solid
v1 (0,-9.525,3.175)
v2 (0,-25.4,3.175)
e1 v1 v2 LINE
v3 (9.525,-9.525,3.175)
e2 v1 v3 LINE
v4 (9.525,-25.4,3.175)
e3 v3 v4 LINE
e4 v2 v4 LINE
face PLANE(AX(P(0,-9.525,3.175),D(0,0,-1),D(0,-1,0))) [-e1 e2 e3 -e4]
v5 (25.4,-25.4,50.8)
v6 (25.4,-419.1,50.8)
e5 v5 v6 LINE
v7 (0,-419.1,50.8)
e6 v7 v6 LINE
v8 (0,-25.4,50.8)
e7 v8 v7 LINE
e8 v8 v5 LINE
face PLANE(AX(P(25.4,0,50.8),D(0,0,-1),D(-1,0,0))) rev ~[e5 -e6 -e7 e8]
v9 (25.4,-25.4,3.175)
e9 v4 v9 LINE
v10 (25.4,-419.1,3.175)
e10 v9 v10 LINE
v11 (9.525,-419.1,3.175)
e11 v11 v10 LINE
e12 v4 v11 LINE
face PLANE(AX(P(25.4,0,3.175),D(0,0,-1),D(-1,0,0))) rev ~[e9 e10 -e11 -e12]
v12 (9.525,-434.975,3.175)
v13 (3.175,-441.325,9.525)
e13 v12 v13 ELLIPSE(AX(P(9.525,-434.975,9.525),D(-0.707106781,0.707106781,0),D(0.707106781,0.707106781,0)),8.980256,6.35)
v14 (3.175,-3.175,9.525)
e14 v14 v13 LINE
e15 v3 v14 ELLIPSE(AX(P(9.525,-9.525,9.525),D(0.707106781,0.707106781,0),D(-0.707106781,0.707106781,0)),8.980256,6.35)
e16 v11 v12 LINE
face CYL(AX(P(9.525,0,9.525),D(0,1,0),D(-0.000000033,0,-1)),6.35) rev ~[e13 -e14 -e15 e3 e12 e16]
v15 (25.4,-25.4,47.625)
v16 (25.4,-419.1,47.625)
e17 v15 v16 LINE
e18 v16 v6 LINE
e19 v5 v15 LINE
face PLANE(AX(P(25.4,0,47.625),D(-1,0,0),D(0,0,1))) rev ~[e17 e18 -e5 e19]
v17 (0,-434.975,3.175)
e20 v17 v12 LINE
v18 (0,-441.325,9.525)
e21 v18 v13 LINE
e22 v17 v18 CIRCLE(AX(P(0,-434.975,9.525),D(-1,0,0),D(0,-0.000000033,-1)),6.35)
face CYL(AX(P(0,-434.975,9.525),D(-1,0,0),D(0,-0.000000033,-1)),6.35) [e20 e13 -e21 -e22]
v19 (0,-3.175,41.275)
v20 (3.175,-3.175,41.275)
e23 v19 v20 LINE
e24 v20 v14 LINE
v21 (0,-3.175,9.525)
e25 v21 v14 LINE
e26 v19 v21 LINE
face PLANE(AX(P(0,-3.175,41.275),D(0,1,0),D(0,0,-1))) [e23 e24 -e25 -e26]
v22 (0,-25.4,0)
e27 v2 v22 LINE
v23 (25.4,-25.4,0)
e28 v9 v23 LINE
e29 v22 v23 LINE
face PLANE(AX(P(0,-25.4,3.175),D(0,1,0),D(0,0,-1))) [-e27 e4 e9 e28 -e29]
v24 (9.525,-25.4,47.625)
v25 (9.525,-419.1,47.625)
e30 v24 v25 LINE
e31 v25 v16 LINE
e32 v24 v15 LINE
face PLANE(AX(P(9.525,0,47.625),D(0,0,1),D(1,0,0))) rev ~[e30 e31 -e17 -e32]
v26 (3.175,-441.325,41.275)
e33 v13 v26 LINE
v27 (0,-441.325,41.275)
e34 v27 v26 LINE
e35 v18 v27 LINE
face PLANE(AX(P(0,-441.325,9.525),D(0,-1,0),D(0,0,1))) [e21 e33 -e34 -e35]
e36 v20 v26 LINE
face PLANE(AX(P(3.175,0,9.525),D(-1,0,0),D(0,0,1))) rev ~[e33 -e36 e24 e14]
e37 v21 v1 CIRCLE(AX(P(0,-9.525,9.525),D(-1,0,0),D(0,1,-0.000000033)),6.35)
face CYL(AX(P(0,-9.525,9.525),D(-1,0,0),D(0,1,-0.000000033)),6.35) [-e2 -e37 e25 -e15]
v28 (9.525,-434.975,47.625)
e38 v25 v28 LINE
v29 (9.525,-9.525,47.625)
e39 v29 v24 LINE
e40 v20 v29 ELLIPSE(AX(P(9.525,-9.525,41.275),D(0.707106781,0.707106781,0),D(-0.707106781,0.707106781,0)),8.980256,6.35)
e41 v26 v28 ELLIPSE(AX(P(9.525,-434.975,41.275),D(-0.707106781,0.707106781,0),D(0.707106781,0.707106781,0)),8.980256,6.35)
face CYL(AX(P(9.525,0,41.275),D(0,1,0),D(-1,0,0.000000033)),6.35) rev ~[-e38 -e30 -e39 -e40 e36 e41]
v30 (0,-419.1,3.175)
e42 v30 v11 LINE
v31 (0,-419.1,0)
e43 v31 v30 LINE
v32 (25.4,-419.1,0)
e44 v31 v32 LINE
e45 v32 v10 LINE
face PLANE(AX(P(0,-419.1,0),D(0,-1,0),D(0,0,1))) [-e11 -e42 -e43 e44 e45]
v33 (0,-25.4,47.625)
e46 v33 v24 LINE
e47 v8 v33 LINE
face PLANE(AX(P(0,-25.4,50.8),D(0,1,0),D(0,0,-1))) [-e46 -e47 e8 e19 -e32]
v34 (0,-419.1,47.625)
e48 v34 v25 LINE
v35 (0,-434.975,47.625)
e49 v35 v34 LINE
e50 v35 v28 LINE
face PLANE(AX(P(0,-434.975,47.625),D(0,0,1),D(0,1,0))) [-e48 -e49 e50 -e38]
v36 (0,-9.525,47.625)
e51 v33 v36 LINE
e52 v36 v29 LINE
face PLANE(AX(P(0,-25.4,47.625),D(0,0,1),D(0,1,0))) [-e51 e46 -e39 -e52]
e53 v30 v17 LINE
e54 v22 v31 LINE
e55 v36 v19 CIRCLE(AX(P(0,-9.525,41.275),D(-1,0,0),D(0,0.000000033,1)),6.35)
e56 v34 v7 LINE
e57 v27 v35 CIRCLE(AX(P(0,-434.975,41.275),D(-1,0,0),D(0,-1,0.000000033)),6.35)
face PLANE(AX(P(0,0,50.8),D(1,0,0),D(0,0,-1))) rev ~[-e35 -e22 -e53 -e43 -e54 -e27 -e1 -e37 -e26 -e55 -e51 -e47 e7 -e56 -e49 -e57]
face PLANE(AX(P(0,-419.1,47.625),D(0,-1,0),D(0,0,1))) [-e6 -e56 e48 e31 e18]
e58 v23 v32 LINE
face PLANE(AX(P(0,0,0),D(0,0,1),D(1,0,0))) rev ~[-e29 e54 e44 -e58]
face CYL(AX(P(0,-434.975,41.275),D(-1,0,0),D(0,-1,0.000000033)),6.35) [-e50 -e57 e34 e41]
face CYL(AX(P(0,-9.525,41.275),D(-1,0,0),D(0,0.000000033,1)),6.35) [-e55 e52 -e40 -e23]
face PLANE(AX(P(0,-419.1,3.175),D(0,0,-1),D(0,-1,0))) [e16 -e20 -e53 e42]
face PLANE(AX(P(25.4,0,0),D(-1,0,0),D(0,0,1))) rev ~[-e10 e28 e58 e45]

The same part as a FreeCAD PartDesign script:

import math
import FreeCAD as App
import Part
import Sketcher
from FreeCAD import Vector
Q = App.Units.Quantity

doc = App.newDocument("Part")
body = doc.addObject("PartDesign::Body", "Body")

sketch1 = body.newObject("Sketcher::SketchObject", "Sketch")
sketch1.AttachmentSupport = (doc.getObject("XZ_Plane"), [""])
sketch1.MapMode = "FlatFace"
sketch1.addGeometry(Part.LineSegment(Vector(0, 50.8, 0), Vector(0, 0, 0)), False)
sketch1.addGeometry(Part.LineSegment(Vector(0, 0, 0), Vector(25.4, 0, 0)), False)
sketch1.addGeometry(Part.LineSegment(Vector(25.4, 0, 0), Vector(25.4, 3.2, 0)), False)
sketch1.addGeometry(Part.LineSegment(Vector(25.4, 3.2, 0), Vector(9.5, 3.2, 0)), False)
sketch1.addGeometry(Part.ArcOfCircle(Part.Circle(Vector(9.5, 9.5, 0), Vector(0, 0, 1), 6.4), math.radians(-180), math.radians(-90)), False)
sketch1.addGeometry(Part.LineSegment(Vector(3.2, 9.5, 0), Vector(3.2, 41.3, 0)), False)
sketch1.addGeometry(Part.ArcOfCircle(Part.Circle(Vector(9.5, 41.3, 0), Vector(0, 0, 1), 6.4), math.radians(90), math.radians(180)), False)
sketch1.addGeometry(Part.LineSegment(Vector(9.5, 47.6, 0), Vector(25.4, 47.6, 0)), False)
sketch1.addGeometry(Part.LineSegment(Vector(25.4, 47.6, 0), Vector(25.4, 50.8, 0)), False)
sketch1.addGeometry(Part.LineSegment(Vector(25.4, 50.8, 0), Vector(0, 50.8, 0)), False)
sketch1.addConstraint(Sketcher.Constraint("Coincident", 0, 2, 1, 1))
sketch1.addConstraint(Sketcher.Constraint("Coincident", 1, 2, 2, 1))
sketch1.addConstraint(Sketcher.Constraint("Coincident", 2, 2, 3, 1))
sketch1.addConstraint(Sketcher.Constraint("Tangent", 3, 2, 4, 2))
sketch1.addConstraint(Sketcher.Constraint("Tangent", 4, 1, 5, 1))
sketch1.addConstraint(Sketcher.Constraint("Tangent", 5, 2, 6, 2))
sketch1.addConstraint(Sketcher.Constraint("Tangent", 6, 1, 7, 1))
sketch1.addConstraint(Sketcher.Constraint("Coincident", 7, 2, 8, 1))
sketch1.addConstraint(Sketcher.Constraint("Coincident", 8, 2, 9, 1))
sketch1.addConstraint(Sketcher.Constraint("Coincident", 9, 2, 0, 1))
sketch1.addConstraint(Sketcher.Constraint("Vertical", 0))
sketch1.addConstraint(Sketcher.Constraint("Horizontal", 1))
sketch1.addConstraint(Sketcher.Constraint("Vertical", 2))
sketch1.addConstraint(Sketcher.Constraint("Horizontal", 3))
sketch1.addConstraint(Sketcher.Constraint("Vertical", 5))
sketch1.addConstraint(Sketcher.Constraint("Horizontal", 7))
sketch1.addConstraint(Sketcher.Constraint("Vertical", 8))
sketch1.addConstraint(Sketcher.Constraint("Horizontal", 9))
sketch1.addConstraint(Sketcher.Constraint("Coincident", 0, 2, -1, 1))
sketch1.addConstraint(Sketcher.Constraint("Equal", 4, 6))
sketch1.addConstraint(Sketcher.Constraint("Vertical", 2, 2, 7, 2))
sketch1.addConstraint(Sketcher.Constraint("Equal", 2, 8))
sketch1.addConstraint(Sketcher.Constraint("DistanceX", 1, 1, 1, 2, Q("1 in")))
sketch1.addConstraint(Sketcher.Constraint("DistanceY", 0, 2, 0, 1, Q("2 in")))
sketch1.addConstraint(Sketcher.Constraint("Radius", 4, Q("0.25 in")))
sketch1.addConstraint(Sketcher.Constraint("DistanceY", 5, 1, 5, 2, Q("1.25 in")))
sketch1.addConstraint(Sketcher.Constraint("DistanceX", 3, 2, 3, 1, Q("0.625 in")))
pad1 = body.newObject("PartDesign::Pad", "Pad")
pad1.Profile = sketch1
pad1.Length = Q("17.5 in")

sketch2 = body.newObject("Sketcher::SketchObject", "Sketch001")
sketch2.AttachmentSupport = (doc.getObject("YZ_Plane"), [""])
sketch2.MapMode = "FlatFace"
sketch2.addGeometry(Part.LineSegment(Vector(-25.4, 0, 0), Vector(0, 0, 0)), False)
sketch2.addGeometry(Part.LineSegment(Vector(0, 0, 0), Vector(0, 50.8, 0)), False)
sketch2.addGeometry(Part.LineSegment(Vector(0, 50.8, 0), Vector(-25.4, 50.8, 0)), False)
sketch2.addGeometry(Part.LineSegment(Vector(-25.4, 50.8, 0), Vector(-25.4, 47.6, 0)), False)
sketch2.addGeometry(Part.LineSegment(Vector(-25.4, 47.6, 0), Vector(-9.5, 47.6, 0)), False)
sketch2.addGeometry(Part.ArcOfCircle(Part.Circle(Vector(-9.5, 41.3, 0), Vector(0, 0, 1), 6.4), math.radians(0), math.radians(90)), False)
sketch2.addGeometry(Part.LineSegment(Vector(-3.2, 41.3, 0), Vector(-3.2, 9.5, 0)), False)
sketch2.addGeometry(Part.ArcOfCircle(Part.Circle(Vector(-9.5, 9.5, 0), Vector(0, 0, 1), 6.4), math.radians(-90), math.radians(0)), False)
sketch2.addGeometry(Part.LineSegment(Vector(-9.5, 3.2, 0), Vector(-25.4, 3.2, 0)), False)
sketch2.addGeometry(Part.LineSegment(Vector(-25.4, 3.2, 0), Vector(-25.4, 0, 0)), False)
sketch2.addGeometry(Part.LineSegment(Vector(-444.5, 50.8, 0), Vector(-444.5, 0, 0)), False)
sketch2.addGeometry(Part.LineSegment(Vector(-444.5, 0, 0), Vector(-419.1, 0, 0)), False)
sketch2.addGeometry(Part.LineSegment(Vector(-419.1, 0, 0), Vector(-419.1, 3.2, 0)), False)
sketch2.addGeometry(Part.LineSegment(Vector(-419.1, 3.2, 0), Vector(-435, 3.2, 0)), False)
sketch2.addGeometry(Part.ArcOfCircle(Part.Circle(Vector(-435, 9.5, 0), Vector(0, 0, 1), 6.4), math.radians(-180), math.radians(-90)), False)
sketch2.addGeometry(Part.LineSegment(Vector(-441.3, 9.5, 0), Vector(-441.3, 41.3, 0)), False)
sketch2.addGeometry(Part.ArcOfCircle(Part.Circle(Vector(-435, 41.3, 0), Vector(0, 0, 1), 6.4), math.radians(90), math.radians(180)), False)
sketch2.addGeometry(Part.LineSegment(Vector(-435, 47.6, 0), Vector(-419.1, 47.6, 0)), False)
sketch2.addGeometry(Part.LineSegment(Vector(-419.1, 47.6, 0), Vector(-419.1, 50.8, 0)), False)
sketch2.addGeometry(Part.LineSegment(Vector(-419.1, 50.8, 0), Vector(-444.5, 50.8, 0)), False)
sketch2.addConstraint(Sketcher.Constraint("Coincident", 0, 2, 1, 1))
sketch2.addConstraint(Sketcher.Constraint("Coincident", 1, 2, 2, 1))
sketch2.addConstraint(Sketcher.Constraint("Coincident", 2, 2, 3, 1))
sketch2.addConstraint(Sketcher.Constraint("Coincident", 3, 2, 4, 1))
sketch2.addConstraint(Sketcher.Constraint("Tangent", 4, 2, 5, 2))
sketch2.addConstraint(Sketcher.Constraint("Tangent", 5, 1, 6, 1))
sketch2.addConstraint(Sketcher.Constraint("Tangent", 6, 2, 7, 2))
sketch2.addConstraint(Sketcher.Constraint("Tangent", 7, 1, 8, 1))
sketch2.addConstraint(Sketcher.Constraint("Coincident", 8, 2, 9, 1))
sketch2.addConstraint(Sketcher.Constraint("Coincident", 9, 2, 0, 1))
sketch2.addConstraint(Sketcher.Constraint("Coincident", 10, 2, 11, 1))
sketch2.addConstraint(Sketcher.Constraint("Coincident", 11, 2, 12, 1))
sketch2.addConstraint(Sketcher.Constraint("Coincident", 12, 2, 13, 1))
sketch2.addConstraint(Sketcher.Constraint("Tangent", 13, 2, 14, 2))
sketch2.addConstraint(Sketcher.Constraint("Tangent", 14, 1, 15, 1))
sketch2.addConstraint(Sketcher.Constraint("Tangent", 15, 2, 16, 2))
sketch2.addConstraint(Sketcher.Constraint("Tangent", 16, 1, 17, 1))
sketch2.addConstraint(Sketcher.Constraint("Coincident", 17, 2, 18, 1))
sketch2.addConstraint(Sketcher.Constraint("Coincident", 18, 2, 19, 1))
sketch2.addConstraint(Sketcher.Constraint("Coincident", 19, 2, 10, 1))
sketch2.addConstraint(Sketcher.Constraint("Horizontal", 0))
sketch2.addConstraint(Sketcher.Constraint("Vertical", 1))
sketch2.addConstraint(Sketcher.Constraint("Horizontal", 2))
sketch2.addConstraint(Sketcher.Constraint("Vertical", 3))
sketch2.addConstraint(Sketcher.Constraint("Horizontal", 4))
sketch2.addConstraint(Sketcher.Constraint("Vertical", 6))
sketch2.addConstraint(Sketcher.Constraint("Horizontal", 8))
sketch2.addConstraint(Sketcher.Constraint("Vertical", 9))
sketch2.addConstraint(Sketcher.Constraint("Vertical", 10))
sketch2.addConstraint(Sketcher.Constraint("Horizontal", 11))
sketch2.addConstraint(Sketcher.Constraint("Vertical", 12))
sketch2.addConstraint(Sketcher.Constraint("Horizontal", 13))
sketch2.addConstraint(Sketcher.Constraint("Vertical", 15))
sketch2.addConstraint(Sketcher.Constraint("Horizontal", 17))
sketch2.addConstraint(Sketcher.Constraint("Vertical", 18))
sketch2.addConstraint(Sketcher.Constraint("Horizontal", 19))
sketch2.addConstraint(Sketcher.Constraint("Coincident", 0, 2, -1, 1))
sketch2.addConstraint(Sketcher.Constraint("Equal", 5, 7))
sketch2.addConstraint(Sketcher.Constraint("Equal", 7, 14))
sketch2.addConstraint(Sketcher.Constraint("Equal", 14, 16))
sketch2.addConstraint(Sketcher.Constraint("PointOnObject", 10, 2, -1))
sketch2.addConstraint(Sketcher.Constraint("Horizontal", 7, 3, 14, 3))
sketch2.addConstraint(Sketcher.Constraint("Horizontal", 5, 3, 16, 3))
sketch2.addConstraint(Sketcher.Constraint("Horizontal", 2, 2, 18, 2))
sketch2.addConstraint(Sketcher.Constraint("Vertical", 3, 2, 8, 2))
sketch2.addConstraint(Sketcher.Constraint("Vertical", 12, 2, 17, 2))
sketch2.addConstraint(Sketcher.Constraint("Equal", 2, 11))
sketch2.addConstraint(Sketcher.Constraint("Equal", 8, 13))
sketch2.addConstraint(Sketcher.Constraint("Equal", 3, 9))
sketch2.addConstraint(Sketcher.Constraint("DistanceX", 0, 1, 0, 2, Q("1 in")))
sketch2.addConstraint(Sketcher.Constraint("DistanceY", 1, 1, 1, 2, Q("2 in")))
sketch2.addConstraint(Sketcher.Constraint("Radius", 5, Q("0.25 in")))
sketch2.addConstraint(Sketcher.Constraint("DistanceY", 6, 2, 6, 1, Q("1.25 in")))
sketch2.addConstraint(Sketcher.Constraint("DistanceX", 10, 2, -1, 1, Q("17.5 in")))
sketch2.addConstraint(Sketcher.Constraint("DistanceX", 4, 1, 4, 2, Q("0.625 in")))
pocket1 = body.newObject("PartDesign::Pocket", "Pocket")
pocket1.Profile = sketch2
pocket1.Type = "ThroughAll"
pocket1.Reversed = True

doc.recompute()
